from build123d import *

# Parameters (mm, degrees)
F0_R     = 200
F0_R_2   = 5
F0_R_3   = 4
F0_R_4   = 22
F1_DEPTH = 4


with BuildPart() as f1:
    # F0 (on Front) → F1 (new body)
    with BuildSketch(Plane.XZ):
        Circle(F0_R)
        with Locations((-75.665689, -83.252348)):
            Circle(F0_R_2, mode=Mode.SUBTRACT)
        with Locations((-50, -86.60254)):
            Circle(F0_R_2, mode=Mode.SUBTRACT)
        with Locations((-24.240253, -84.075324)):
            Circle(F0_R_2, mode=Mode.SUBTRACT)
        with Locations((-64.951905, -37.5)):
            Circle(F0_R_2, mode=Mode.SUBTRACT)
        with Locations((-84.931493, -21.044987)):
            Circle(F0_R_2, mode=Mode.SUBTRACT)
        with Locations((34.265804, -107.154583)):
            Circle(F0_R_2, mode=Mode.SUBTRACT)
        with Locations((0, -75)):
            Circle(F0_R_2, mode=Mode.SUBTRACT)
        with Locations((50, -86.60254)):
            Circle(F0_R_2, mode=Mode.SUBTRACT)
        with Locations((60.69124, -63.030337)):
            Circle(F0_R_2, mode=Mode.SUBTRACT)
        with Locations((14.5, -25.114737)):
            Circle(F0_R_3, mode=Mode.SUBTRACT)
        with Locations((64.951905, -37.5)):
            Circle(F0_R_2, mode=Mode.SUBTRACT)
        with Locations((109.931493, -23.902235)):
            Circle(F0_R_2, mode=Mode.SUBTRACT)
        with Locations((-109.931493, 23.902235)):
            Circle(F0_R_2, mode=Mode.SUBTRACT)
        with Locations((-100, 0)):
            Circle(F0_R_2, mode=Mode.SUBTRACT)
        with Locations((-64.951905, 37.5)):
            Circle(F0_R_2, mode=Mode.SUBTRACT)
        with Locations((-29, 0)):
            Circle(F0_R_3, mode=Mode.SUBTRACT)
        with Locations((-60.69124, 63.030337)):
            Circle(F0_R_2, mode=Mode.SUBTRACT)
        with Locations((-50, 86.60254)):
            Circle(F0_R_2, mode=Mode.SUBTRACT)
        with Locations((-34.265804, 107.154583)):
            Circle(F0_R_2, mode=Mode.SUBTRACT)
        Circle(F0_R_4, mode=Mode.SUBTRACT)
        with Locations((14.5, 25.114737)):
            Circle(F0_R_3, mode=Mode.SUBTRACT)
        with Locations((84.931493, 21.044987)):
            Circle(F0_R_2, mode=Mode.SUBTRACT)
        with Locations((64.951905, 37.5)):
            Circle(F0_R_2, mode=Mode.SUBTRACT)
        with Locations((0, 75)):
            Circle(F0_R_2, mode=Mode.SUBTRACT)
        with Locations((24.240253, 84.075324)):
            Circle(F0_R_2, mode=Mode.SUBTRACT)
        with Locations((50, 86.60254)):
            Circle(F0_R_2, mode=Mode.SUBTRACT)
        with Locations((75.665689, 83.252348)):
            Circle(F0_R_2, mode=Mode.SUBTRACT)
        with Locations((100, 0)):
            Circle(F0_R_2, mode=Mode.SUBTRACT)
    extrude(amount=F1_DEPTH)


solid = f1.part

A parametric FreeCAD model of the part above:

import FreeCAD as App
import Part
import Sketcher
from FreeCAD import Vector
Q = App.Units.Quantity

doc = App.newDocument("Part")
body = doc.addObject("PartDesign::Body", "Body")

# Sketch on XZ plane
sketch1 = doc.addObject("Sketcher::SketchObject", "Sketch")
body.addObject(sketch1)
sketch1.AttachmentSupport = (doc.XZ_Plane, [""])
sketch1.MapMode = "FlatFace"
sketch1.addGeometry(Part.Circle(Vector(0, 0, 0), Vector(0, 0, 1), 200), False)
sketch1.addGeometry(Part.Circle(Vector(-75.7, -83.3, 0), Vector(0, 0, 1), 5), False)
sketch1.addGeometry(Part.Circle(Vector(-50, -86.6, 0), Vector(0, 0, 1), 5), False)
sketch1.addGeometry(Part.Circle(Vector(-24.2, -84.1, 0), Vector(0, 0, 1), 5), False)
sketch1.addGeometry(Part.Circle(Vector(-65, -37.5, 0), Vector(0, 0, 1), 5), False)
sketch1.addGeometry(Part.Circle(Vector(-100, 0, 0), Vector(0, 0, 1), 5), False)
sketch1.addGeometry(Part.Circle(Vector(-84.9, -21, 0), Vector(0, 0, 1), 5), False)
sketch1.addGeometry(Part.Circle(Vector(-29, 0, 0), Vector(0, 0, 1), 4), False)
sketch1.addGeometry(Part.Circle(Vector(34.3, -107.2, 0), Vector(0, 0, 1), 5), False)
sketch1.addGeometry(Part.Circle(Vector(50, -86.6, 0), Vector(0, 0, 1), 5), False)
sketch1.addGeometry(Part.Circle(Vector(0, -75, 0), Vector(0, 0, 1), 5), False)
sketch1.addGeometry(Part.Circle(Vector(60.7, -63, 0), Vector(0, 0, 1), 5), False)
sketch1.addGeometry(Part.Circle(Vector(14.5, -25.1, 0), Vector(0, 0, 1), 4), False)
sketch1.addGeometry(Part.Circle(Vector(0, 0, 0), Vector(0, 0, 1), 22), False)
sketch1.addGeometry(Part.Circle(Vector(65, -37.5, 0), Vector(0, 0, 1), 5), False)
sketch1.addGeometry(Part.Circle(Vector(109.9, -23.9, 0), Vector(0, 0, 1), 5), False)
sketch1.addGeometry(Part.Circle(Vector(100, 0, 0), Vector(0, 0, 1), 5), False)
sketch1.addGeometry(Part.Circle(Vector(-109.9, 23.9, 0), Vector(0, 0, 1), 5), False)
sketch1.addGeometry(Part.Circle(Vector(-65, 37.5, 0), Vector(0, 0, 1), 5), False)
sketch1.addGeometry(Part.Circle(Vector(-60.7, 63, 0), Vector(0, 0, 1), 5), False)
sketch1.addGeometry(Part.Circle(Vector(-50, 86.6, 0), Vector(0, 0, 1), 5), False)
sketch1.addGeometry(Part.Circle(Vector(-34.3, 107.2, 0), Vector(0, 0, 1), 5), False)
sketch1.addGeometry(Part.Circle(Vector(14.5, 25.1, 0), Vector(0, 0, 1), 4), False)
sketch1.addGeometry(Part.Circle(Vector(84.9, 21, 0), Vector(0, 0, 1), 5), False)
sketch1.addGeometry(Part.Circle(Vector(65, 37.5, 0), Vector(0, 0, 1), 5), False)
sketch1.addGeometry(Part.Circle(Vector(0, 75, 0), Vector(0, 0, 1), 5), False)
sketch1.addGeometry(Part.Circle(Vector(24.2, 84.1, 0), Vector(0, 0, 1), 5), False)
sketch1.addGeometry(Part.Circle(Vector(50, 86.6, 0), Vector(0, 0, 1), 5), False)
sketch1.addGeometry(Part.Circle(Vector(75.7, 83.3, 0), Vector(0, 0, 1), 5), False)
sketch1.addConstraint(Sketcher.Constraint("Coincident", 0, 3, -1, 1))
sketch1.addConstraint(Sketcher.Constraint("Coincident", 13, 3, -1, 1))
sketch1.addConstraint(Sketcher.Constraint("Equal", 1, 2))
sketch1.addConstraint(Sketcher.Constraint("Equal", 2, 3))
sketch1.addConstraint(Sketcher.Constraint("Equal", 3, 4))
sketch1.addConstraint(Sketcher.Constraint("Equal", 4, 5))
sketch1.addConstraint(Sketcher.Constraint("Equal", 5, 6))
sketch1.addConstraint(Sketcher.Constraint("Equal", 6, 8))
sketch1.addConstraint(Sketcher.Constraint("Equal", 8, 9))
sketch1.addConstraint(Sketcher.Constraint("Equal", 9, 10))
sketch1.addConstraint(Sketcher.Constraint("Equal", 10, 11))
sketch1.addConstraint(Sketcher.Constraint("Equal", 7, 12))
sketch1.addConstraint(Sketcher.Constraint("Equal", 11, 14))
sketch1.addConstraint(Sketcher.Constraint("Equal", 14, 15))
sketch1.addConstraint(Sketcher.Constraint("Equal", 15, 16))
sketch1.addConstraint(Sketcher.Constraint("Equal", 16, 17))
sketch1.addConstraint(Sketcher.Constraint("Equal", 17, 18))
sketch1.addConstraint(Sketcher.Constraint("Equal", 18, 19))
sketch1.addConstraint(Sketcher.Constraint("Equal", 19, 20))
sketch1.addConstraint(Sketcher.Constraint("Equal", 20, 21))
sketch1.addConstraint(Sketcher.Constraint("Equal", 12, 22))
sketch1.addConstraint(Sketcher.Constraint("Equal", 21, 23))
sketch1.addConstraint(Sketcher.Constraint("Equal", 23, 24))
sketch1.addConstraint(Sketcher.Constraint("Equal", 24, 25))
sketch1.addConstraint(Sketcher.Constraint("Equal", 25, 26))
sketch1.addConstraint(Sketcher.Constraint("Equal", 26, 27))
sketch1.addConstraint(Sketcher.Constraint("Equal", 27, 28))
sketch1.addConstraint(Sketcher.Constraint("Symmetric", 5, 3, 16, 3, -1, 1))
sketch1.addConstraint(Sketcher.Constraint("Symmetric", 15, 3, 17, 3, -1, 1))
sketch1.addConstraint(Sketcher.Constraint("Symmetric", 14, 3, 18, 3, -1, 1))
sketch1.addConstraint(Sketcher.Constraint("Symmetric", 11, 3, 19, 3, -1, 1))
sketch1.addConstraint(Sketcher.Constraint("Symmetric", 9, 3, 20, 3, -1, 1))
sketch1.addConstraint(Sketcher.Constraint("Symmetric", 8, 3, 21, 3, -1, 1))
sketch1.addConstraint(Sketcher.Constraint("Symmetric", 6, 3, 23, 3, -1, 1))
sketch1.addConstraint(Sketcher.Constraint("Symmetric", 4, 3, 24, 3, -1, 1))
sketch1.addConstraint(Sketcher.Constraint("Symmetric", 10, 3, 25, 3, -1, 1))
sketch1.addConstraint(Sketcher.Constraint("Symmetric", 3, 3, 26, 3, -1, 1))
sketch1.addConstraint(Sketcher.Constraint("Symmetric", 2, 3, 27, 3, -1, 1))
sketch1.addConstraint(Sketcher.Constraint("Symmetric", 1, 3, 28, 3, -1, 1))
sketch1.addConstraint(Sketcher.Constraint("Symmetric", 2, 3, 9, 3, -2))
sketch1.addConstraint(Sketcher.Constraint("Symmetric", 4, 3, 14, 3, -2))
sketch1.addConstraint(Sketcher.Constraint("Symmetric", 12, 3, 22, 3, -1))
sketch1.addConstraint(Sketcher.Constraint("PointOnObject", 5, 3, -1))
sketch1.addConstraint(Sketcher.Constraint("PointOnObject", 7, 3, -1))
sketch1.addConstraint(Sketcher.Constraint("PointOnObject", 10, 3, -2))
sketch1.addConstraint(Sketcher.Constraint("Diameter", 0, Q("400 mm")))
sketch1.addConstraint(Sketcher.Constraint("Diameter", 1, Q("10 mm")))
sketch1.addConstraint(Sketcher.Constraint("Diameter", 7, Q("8 mm")))
sketch1.addConstraint(Sketcher.Constraint("Diameter", 13, Q("44 mm")))
sketch1.addConstraint(Sketcher.Constraint("DistanceX", 2, 3, -1, 1, Q("50 mm")))
sketch1.addConstraint(Sketcher.Constraint("DistanceX", 5, 3, -1, 1, Q("100 mm")))
sketch1.addConstraint(Sketcher.Constraint("DistanceX", 7, 3, -1, 1, Q("29 mm")))
sketch1.addConstraint(Sketcher.Constraint("DistanceY", 10, 3, -1, 1, Q("75 mm")))
sketch1.addConstraint(Sketcher.Constraint("DistanceX", 17, 3, 6, 3, Q("25 mm")))
sketch1.addConstraint(Sketcher.Constraint("DistanceY", 4, 3, -1, 1, Q("37.5 mm")))
sketch1.addConstraint(Sketcher.Constraint("DistanceX", -1, 1, 12, 3, Q("14.5 mm")))
sketch1.addConstraint(Sketcher.Constraint("DistanceY", 11, 3, 12, 3, Q("37.9156 mm")))
sketch1.addConstraint(Sketcher.Constraint("DistanceY", 11, 3, 15, 3, Q("39.128102 mm")))
sketch1.addConstraint(Sketcher.Constraint("DistanceX", 18, 3, 21, 3, Q("30.686101 mm")))
sketch1.addConstraint(Sketcher.Constraint("DistanceX", 1, 3, -1, 1, Q("75.665689 mm")))
sketch1.addConstraint(Sketcher.Constraint("DistanceY", 2, 3, -1, 1, Q("86.60254 mm")))
sketch1.addConstraint(Sketcher.Constraint("DistanceX", -1, 1, 11, 3, Q("60.69124 mm")))
sketch1.addConstraint(Sketcher.Constraint("DistanceX", 6, 3, 4, 3, Q("19.979588 mm")))
sketch1.addConstraint(Sketcher.Constraint("DistanceY", 1, 3, 6, 3, Q("62.207361 mm")))
sketch1.addConstraint(Sketcher.Constraint("DistanceY", 8, 3, 3, 3, Q("23.079259 mm")))
sketch1.addConstraint(Sketcher.Constraint("DistanceX", 4, 3, 8, 3, Q("99.217709 mm")))
sketch1.addConstraint(Sketcher.Constraint("DistanceY", 6, 3, 17, 3, Q("44.947222 mm")))
sketch1.addConstraint(Sketcher.Constraint("DistanceY", 23, 3, 22, 3, Q("4.06975 mm")))
sketch1.addConstraint(Sketcher.Constraint("DistanceX", 3, 3, -1, 1, Q("24.240253 mm")))
sketch1.addConstraint(Sketcher.Constraint("DistanceY", 3, 3, -1, 1, Q("84.075324 mm")))
pad1 = doc.addObject("PartDesign::Pad", "Pad")
body.addObject(pad1)
pad1.Profile = sketch1
pad1.Length = 4

doc.recompute()
